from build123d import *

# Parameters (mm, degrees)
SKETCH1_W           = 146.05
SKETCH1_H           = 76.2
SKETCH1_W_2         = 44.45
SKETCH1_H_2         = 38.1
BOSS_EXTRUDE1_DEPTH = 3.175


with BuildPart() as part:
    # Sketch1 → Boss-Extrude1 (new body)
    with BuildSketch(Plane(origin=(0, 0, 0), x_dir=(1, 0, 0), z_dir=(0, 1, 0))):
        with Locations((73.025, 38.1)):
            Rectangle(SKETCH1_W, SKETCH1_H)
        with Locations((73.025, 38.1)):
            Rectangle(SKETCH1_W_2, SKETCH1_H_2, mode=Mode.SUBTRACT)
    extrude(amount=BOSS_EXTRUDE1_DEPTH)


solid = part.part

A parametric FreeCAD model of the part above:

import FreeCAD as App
import Part
import Sketcher

V = App.Vector
Q = App.Units.Quantity

doc = App.newDocument("Part")
body = doc.addObject("PartDesign::Body", "Body")

sketch1 = body.newObject("Sketcher::SketchObject", "Sketch")
sketch1.AttachmentSupport = (doc.getObject("XZ_Plane"), [""])
sketch1.MapMode = "FlatFace"
sketch1.addGeometry(Part.LineSegment(V(0, -76, 0), V(0, 0, 0)), False)
sketch1.addGeometry(Part.LineSegment(V(0, 0, 0), V(146, 0, 0)), False)
sketch1.addGeometry(Part.LineSegment(V(146, 0, 0), V(146, -76, 0)), False)
sketch1.addGeometry(Part.LineSegment(V(146, -76, 0), V(0, -76, 0)), False)
sketch1.addGeometry(Part.LineSegment(V(95, -19, 0), V(51, -19, 0)), False)
sketch1.addGeometry(Part.LineSegment(V(51, -19, 0), V(51, -57, 0)), False)
sketch1.addGeometry(Part.LineSegment(V(51, -57, 0), V(95, -57, 0)), False)
sketch1.addGeometry(Part.LineSegment(V(95, -57, 0), V(95, -19, 0)), False)
sketch1.addConstraint(Sketcher.Constraint("Coincident", 0, 2, 1, 1))
sketch1.addConstraint(Sketcher.Constraint("Coincident", 1, 2, 2, 1))
sketch1.addConstraint(Sketcher.Constraint("Coincident", 2, 2, 3, 1))
sketch1.addConstraint(Sketcher.Constraint("Coincident", 3, 2, 0, 1))
sketch1.addConstraint(Sketcher.Constraint("Coincident", 4, 2, 5, 1))
sketch1.addConstraint(Sketcher.Constraint("Coincident", 5, 2, 6, 1))
sketch1.addConstraint(Sketcher.Constraint("Coincident", 6, 2, 7, 1))
sketch1.addConstraint(Sketcher.Constraint("Coincident", 7, 2, 4, 1))
sketch1.addConstraint(Sketcher.Constraint("Vertical", 0))
sketch1.addConstraint(Sketcher.Constraint("Horizontal", 1))
sketch1.addConstraint(Sketcher.Constraint("Vertical", 2))
sketch1.addConstraint(Sketcher.Constraint("Horizontal", 3))
sketch1.addConstraint(Sketcher.Constraint("Horizontal", 4))
sketch1.addConstraint(Sketcher.Constraint("Vertical", 5))
sketch1.addConstraint(Sketcher.Constraint("Horizontal", 6))
sketch1.addConstraint(Sketcher.Constraint("Vertical", 7))
sketch1.addConstraint(Sketcher.Constraint("Coincident", 0, 2, -1, 1))
sketch1.addConstraint(Sketcher.Constraint("DistanceY", 0, 1, 0, 2, Q("3 in")))
sketch1.addConstraint(Sketcher.Constraint("DistanceY", 5, 2, 5, 1, Q("1.5 in")))
sketch1.addConstraint(Sketcher.Constraint("DistanceX", -1, 1, 4, 2, Q("2 in")))
sketch1.addConstraint(Sketcher.Constraint("DistanceX", 6, 2, 2, 2, Q("2 in")))
sketch1.addConstraint(Sketcher.Constraint("DistanceX", 1, 1, 1, 2, Q("5.75 in")))
sketch1.addConstraint(Sketcher.Constraint("DistanceY", 4, 2, -1, 1, Q("0.75 in")))
pad1 = body.newObject("PartDesign::Pad", "Pad")
pad1.Profile = sketch1
pad1.Length = Q("0.125 in")
pad1.Reversed = True

doc.recompute()
